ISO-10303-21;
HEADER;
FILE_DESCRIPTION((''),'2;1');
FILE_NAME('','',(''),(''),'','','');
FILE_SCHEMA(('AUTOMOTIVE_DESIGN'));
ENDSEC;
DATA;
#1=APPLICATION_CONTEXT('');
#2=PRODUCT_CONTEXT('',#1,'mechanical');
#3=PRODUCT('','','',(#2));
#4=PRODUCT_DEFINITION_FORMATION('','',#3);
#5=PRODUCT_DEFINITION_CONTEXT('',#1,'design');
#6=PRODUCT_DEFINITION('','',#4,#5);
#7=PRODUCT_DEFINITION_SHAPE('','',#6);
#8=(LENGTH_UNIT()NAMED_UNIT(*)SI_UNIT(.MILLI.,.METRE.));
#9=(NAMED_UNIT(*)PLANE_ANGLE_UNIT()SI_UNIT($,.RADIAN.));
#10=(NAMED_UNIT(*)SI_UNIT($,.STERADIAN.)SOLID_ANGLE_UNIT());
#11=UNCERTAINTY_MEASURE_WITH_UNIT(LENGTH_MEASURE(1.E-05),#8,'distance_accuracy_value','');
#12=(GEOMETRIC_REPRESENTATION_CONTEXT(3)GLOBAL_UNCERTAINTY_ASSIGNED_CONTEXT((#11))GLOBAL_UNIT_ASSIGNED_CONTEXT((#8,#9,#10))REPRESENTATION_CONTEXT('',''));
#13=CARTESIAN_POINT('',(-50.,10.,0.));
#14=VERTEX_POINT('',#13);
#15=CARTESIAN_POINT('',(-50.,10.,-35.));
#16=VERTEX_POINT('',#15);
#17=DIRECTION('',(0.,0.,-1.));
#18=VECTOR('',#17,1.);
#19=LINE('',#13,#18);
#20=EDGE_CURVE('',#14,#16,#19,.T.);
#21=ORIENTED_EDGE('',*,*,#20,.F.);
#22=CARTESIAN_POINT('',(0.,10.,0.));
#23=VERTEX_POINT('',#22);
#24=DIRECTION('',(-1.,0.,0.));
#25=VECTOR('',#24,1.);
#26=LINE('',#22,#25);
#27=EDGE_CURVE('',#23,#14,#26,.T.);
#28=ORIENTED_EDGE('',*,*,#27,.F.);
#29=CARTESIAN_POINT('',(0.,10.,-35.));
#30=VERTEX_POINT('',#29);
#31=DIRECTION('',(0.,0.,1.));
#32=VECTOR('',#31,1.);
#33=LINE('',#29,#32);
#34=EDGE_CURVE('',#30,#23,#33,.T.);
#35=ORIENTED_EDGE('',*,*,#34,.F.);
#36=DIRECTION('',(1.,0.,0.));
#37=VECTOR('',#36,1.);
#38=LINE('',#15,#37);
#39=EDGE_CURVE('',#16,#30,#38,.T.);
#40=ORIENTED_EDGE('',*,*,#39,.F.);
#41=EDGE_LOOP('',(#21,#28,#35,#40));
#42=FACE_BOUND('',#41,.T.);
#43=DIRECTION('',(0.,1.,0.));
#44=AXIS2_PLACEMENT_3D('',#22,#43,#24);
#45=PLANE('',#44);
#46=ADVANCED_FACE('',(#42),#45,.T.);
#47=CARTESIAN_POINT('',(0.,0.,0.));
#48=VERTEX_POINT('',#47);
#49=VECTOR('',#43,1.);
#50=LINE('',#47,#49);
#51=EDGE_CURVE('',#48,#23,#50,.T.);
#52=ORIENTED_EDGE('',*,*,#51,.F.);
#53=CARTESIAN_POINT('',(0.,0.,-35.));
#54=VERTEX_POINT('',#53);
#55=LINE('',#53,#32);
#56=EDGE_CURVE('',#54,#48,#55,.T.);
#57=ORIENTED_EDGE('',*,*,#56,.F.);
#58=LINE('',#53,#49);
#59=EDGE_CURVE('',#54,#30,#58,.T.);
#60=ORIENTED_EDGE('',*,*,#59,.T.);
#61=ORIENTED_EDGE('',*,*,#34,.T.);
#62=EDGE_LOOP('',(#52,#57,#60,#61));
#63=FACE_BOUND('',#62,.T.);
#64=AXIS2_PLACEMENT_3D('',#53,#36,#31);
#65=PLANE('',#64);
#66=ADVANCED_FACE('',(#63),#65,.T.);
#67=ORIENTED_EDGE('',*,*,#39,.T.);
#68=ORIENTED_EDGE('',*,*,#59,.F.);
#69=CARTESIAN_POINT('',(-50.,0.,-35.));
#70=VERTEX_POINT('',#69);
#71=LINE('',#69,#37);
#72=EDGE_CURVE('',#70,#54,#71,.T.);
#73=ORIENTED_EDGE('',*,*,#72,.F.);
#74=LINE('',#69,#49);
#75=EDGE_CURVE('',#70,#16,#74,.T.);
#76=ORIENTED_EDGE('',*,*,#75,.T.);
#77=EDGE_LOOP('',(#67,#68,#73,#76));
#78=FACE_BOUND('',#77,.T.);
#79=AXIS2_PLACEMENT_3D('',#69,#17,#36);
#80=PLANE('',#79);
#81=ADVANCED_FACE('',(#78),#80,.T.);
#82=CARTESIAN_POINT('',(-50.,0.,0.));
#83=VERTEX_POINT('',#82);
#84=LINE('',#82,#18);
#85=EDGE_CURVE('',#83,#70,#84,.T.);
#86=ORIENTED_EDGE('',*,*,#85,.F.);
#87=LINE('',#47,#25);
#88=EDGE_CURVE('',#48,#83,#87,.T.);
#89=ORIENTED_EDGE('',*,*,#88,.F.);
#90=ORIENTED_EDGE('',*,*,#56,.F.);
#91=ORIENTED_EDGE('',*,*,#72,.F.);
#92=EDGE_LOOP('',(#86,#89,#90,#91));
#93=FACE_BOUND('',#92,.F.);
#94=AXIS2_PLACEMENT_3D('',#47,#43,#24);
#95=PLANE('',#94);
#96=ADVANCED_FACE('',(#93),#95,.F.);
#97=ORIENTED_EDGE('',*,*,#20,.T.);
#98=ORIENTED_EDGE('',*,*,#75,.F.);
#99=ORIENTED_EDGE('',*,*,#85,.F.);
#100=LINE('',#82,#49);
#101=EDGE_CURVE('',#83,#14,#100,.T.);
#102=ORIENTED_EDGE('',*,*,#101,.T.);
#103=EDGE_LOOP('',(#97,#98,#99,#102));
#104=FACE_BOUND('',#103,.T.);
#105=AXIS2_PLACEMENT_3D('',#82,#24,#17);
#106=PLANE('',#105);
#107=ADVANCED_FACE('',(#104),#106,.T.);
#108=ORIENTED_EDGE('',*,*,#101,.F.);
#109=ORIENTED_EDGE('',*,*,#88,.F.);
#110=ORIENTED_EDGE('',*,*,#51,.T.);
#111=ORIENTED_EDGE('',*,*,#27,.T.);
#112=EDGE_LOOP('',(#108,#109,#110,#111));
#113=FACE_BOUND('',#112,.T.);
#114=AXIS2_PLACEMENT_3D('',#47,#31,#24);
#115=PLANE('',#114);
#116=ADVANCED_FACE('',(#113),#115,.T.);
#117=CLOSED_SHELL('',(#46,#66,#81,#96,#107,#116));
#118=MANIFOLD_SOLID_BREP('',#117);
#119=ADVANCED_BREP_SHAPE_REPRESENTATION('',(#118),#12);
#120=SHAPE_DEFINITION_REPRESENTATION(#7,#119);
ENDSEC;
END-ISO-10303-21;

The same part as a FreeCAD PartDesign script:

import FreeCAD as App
import Part
import Sketcher

V = App.Vector


def add_polygon(sketch, points):
    """Adds a closed chain of lines whose ends are joined by coincident constraints."""
    first, n = sketch.GeometryCount, len(points)
    for a, b in zip(points, points[1:] + points[:1]):
        sketch.addGeometry(Part.LineSegment(App.Vector(*a, 0), App.Vector(*b, 0)), False)
    for i in range(n):
        sketch.addConstraint(Sketcher.Constraint("Coincident", first + i, 2, first + (i + 1) % n, 1))

doc = App.newDocument("Part")
body = doc.addObject("PartDesign::Body", "Body")

sketch1 = body.newObject("Sketcher::SketchObject", "Sketch")
sketch1.AttachmentSupport = (doc.getObject("XZ_Plane"), [""])
sketch1.MapMode = "FlatFace"
add_polygon(sketch1, [(-50, 0), (0, 0), (0, -35), (-50, -35)])
sketch1.addConstraint([
    Sketcher.Constraint("Horizontal", 0),
    Sketcher.Constraint("Vertical", 1),
    Sketcher.Constraint("Horizontal", 2),
    Sketcher.Constraint("Vertical", 3),
    Sketcher.Constraint("Coincident", 0, 2, -1, 1),
    Sketcher.Constraint("DistanceX", 0, 1, 0, 2, 50.0),
    Sketcher.Constraint("DistanceY", 1, 2, 1, 1, 35.0),
])
pad1 = body.newObject("PartDesign::Pad", "Pad")
pad1.Profile = sketch1
pad1.Length = 10
pad1.Reversed = True

doc.recompute()
